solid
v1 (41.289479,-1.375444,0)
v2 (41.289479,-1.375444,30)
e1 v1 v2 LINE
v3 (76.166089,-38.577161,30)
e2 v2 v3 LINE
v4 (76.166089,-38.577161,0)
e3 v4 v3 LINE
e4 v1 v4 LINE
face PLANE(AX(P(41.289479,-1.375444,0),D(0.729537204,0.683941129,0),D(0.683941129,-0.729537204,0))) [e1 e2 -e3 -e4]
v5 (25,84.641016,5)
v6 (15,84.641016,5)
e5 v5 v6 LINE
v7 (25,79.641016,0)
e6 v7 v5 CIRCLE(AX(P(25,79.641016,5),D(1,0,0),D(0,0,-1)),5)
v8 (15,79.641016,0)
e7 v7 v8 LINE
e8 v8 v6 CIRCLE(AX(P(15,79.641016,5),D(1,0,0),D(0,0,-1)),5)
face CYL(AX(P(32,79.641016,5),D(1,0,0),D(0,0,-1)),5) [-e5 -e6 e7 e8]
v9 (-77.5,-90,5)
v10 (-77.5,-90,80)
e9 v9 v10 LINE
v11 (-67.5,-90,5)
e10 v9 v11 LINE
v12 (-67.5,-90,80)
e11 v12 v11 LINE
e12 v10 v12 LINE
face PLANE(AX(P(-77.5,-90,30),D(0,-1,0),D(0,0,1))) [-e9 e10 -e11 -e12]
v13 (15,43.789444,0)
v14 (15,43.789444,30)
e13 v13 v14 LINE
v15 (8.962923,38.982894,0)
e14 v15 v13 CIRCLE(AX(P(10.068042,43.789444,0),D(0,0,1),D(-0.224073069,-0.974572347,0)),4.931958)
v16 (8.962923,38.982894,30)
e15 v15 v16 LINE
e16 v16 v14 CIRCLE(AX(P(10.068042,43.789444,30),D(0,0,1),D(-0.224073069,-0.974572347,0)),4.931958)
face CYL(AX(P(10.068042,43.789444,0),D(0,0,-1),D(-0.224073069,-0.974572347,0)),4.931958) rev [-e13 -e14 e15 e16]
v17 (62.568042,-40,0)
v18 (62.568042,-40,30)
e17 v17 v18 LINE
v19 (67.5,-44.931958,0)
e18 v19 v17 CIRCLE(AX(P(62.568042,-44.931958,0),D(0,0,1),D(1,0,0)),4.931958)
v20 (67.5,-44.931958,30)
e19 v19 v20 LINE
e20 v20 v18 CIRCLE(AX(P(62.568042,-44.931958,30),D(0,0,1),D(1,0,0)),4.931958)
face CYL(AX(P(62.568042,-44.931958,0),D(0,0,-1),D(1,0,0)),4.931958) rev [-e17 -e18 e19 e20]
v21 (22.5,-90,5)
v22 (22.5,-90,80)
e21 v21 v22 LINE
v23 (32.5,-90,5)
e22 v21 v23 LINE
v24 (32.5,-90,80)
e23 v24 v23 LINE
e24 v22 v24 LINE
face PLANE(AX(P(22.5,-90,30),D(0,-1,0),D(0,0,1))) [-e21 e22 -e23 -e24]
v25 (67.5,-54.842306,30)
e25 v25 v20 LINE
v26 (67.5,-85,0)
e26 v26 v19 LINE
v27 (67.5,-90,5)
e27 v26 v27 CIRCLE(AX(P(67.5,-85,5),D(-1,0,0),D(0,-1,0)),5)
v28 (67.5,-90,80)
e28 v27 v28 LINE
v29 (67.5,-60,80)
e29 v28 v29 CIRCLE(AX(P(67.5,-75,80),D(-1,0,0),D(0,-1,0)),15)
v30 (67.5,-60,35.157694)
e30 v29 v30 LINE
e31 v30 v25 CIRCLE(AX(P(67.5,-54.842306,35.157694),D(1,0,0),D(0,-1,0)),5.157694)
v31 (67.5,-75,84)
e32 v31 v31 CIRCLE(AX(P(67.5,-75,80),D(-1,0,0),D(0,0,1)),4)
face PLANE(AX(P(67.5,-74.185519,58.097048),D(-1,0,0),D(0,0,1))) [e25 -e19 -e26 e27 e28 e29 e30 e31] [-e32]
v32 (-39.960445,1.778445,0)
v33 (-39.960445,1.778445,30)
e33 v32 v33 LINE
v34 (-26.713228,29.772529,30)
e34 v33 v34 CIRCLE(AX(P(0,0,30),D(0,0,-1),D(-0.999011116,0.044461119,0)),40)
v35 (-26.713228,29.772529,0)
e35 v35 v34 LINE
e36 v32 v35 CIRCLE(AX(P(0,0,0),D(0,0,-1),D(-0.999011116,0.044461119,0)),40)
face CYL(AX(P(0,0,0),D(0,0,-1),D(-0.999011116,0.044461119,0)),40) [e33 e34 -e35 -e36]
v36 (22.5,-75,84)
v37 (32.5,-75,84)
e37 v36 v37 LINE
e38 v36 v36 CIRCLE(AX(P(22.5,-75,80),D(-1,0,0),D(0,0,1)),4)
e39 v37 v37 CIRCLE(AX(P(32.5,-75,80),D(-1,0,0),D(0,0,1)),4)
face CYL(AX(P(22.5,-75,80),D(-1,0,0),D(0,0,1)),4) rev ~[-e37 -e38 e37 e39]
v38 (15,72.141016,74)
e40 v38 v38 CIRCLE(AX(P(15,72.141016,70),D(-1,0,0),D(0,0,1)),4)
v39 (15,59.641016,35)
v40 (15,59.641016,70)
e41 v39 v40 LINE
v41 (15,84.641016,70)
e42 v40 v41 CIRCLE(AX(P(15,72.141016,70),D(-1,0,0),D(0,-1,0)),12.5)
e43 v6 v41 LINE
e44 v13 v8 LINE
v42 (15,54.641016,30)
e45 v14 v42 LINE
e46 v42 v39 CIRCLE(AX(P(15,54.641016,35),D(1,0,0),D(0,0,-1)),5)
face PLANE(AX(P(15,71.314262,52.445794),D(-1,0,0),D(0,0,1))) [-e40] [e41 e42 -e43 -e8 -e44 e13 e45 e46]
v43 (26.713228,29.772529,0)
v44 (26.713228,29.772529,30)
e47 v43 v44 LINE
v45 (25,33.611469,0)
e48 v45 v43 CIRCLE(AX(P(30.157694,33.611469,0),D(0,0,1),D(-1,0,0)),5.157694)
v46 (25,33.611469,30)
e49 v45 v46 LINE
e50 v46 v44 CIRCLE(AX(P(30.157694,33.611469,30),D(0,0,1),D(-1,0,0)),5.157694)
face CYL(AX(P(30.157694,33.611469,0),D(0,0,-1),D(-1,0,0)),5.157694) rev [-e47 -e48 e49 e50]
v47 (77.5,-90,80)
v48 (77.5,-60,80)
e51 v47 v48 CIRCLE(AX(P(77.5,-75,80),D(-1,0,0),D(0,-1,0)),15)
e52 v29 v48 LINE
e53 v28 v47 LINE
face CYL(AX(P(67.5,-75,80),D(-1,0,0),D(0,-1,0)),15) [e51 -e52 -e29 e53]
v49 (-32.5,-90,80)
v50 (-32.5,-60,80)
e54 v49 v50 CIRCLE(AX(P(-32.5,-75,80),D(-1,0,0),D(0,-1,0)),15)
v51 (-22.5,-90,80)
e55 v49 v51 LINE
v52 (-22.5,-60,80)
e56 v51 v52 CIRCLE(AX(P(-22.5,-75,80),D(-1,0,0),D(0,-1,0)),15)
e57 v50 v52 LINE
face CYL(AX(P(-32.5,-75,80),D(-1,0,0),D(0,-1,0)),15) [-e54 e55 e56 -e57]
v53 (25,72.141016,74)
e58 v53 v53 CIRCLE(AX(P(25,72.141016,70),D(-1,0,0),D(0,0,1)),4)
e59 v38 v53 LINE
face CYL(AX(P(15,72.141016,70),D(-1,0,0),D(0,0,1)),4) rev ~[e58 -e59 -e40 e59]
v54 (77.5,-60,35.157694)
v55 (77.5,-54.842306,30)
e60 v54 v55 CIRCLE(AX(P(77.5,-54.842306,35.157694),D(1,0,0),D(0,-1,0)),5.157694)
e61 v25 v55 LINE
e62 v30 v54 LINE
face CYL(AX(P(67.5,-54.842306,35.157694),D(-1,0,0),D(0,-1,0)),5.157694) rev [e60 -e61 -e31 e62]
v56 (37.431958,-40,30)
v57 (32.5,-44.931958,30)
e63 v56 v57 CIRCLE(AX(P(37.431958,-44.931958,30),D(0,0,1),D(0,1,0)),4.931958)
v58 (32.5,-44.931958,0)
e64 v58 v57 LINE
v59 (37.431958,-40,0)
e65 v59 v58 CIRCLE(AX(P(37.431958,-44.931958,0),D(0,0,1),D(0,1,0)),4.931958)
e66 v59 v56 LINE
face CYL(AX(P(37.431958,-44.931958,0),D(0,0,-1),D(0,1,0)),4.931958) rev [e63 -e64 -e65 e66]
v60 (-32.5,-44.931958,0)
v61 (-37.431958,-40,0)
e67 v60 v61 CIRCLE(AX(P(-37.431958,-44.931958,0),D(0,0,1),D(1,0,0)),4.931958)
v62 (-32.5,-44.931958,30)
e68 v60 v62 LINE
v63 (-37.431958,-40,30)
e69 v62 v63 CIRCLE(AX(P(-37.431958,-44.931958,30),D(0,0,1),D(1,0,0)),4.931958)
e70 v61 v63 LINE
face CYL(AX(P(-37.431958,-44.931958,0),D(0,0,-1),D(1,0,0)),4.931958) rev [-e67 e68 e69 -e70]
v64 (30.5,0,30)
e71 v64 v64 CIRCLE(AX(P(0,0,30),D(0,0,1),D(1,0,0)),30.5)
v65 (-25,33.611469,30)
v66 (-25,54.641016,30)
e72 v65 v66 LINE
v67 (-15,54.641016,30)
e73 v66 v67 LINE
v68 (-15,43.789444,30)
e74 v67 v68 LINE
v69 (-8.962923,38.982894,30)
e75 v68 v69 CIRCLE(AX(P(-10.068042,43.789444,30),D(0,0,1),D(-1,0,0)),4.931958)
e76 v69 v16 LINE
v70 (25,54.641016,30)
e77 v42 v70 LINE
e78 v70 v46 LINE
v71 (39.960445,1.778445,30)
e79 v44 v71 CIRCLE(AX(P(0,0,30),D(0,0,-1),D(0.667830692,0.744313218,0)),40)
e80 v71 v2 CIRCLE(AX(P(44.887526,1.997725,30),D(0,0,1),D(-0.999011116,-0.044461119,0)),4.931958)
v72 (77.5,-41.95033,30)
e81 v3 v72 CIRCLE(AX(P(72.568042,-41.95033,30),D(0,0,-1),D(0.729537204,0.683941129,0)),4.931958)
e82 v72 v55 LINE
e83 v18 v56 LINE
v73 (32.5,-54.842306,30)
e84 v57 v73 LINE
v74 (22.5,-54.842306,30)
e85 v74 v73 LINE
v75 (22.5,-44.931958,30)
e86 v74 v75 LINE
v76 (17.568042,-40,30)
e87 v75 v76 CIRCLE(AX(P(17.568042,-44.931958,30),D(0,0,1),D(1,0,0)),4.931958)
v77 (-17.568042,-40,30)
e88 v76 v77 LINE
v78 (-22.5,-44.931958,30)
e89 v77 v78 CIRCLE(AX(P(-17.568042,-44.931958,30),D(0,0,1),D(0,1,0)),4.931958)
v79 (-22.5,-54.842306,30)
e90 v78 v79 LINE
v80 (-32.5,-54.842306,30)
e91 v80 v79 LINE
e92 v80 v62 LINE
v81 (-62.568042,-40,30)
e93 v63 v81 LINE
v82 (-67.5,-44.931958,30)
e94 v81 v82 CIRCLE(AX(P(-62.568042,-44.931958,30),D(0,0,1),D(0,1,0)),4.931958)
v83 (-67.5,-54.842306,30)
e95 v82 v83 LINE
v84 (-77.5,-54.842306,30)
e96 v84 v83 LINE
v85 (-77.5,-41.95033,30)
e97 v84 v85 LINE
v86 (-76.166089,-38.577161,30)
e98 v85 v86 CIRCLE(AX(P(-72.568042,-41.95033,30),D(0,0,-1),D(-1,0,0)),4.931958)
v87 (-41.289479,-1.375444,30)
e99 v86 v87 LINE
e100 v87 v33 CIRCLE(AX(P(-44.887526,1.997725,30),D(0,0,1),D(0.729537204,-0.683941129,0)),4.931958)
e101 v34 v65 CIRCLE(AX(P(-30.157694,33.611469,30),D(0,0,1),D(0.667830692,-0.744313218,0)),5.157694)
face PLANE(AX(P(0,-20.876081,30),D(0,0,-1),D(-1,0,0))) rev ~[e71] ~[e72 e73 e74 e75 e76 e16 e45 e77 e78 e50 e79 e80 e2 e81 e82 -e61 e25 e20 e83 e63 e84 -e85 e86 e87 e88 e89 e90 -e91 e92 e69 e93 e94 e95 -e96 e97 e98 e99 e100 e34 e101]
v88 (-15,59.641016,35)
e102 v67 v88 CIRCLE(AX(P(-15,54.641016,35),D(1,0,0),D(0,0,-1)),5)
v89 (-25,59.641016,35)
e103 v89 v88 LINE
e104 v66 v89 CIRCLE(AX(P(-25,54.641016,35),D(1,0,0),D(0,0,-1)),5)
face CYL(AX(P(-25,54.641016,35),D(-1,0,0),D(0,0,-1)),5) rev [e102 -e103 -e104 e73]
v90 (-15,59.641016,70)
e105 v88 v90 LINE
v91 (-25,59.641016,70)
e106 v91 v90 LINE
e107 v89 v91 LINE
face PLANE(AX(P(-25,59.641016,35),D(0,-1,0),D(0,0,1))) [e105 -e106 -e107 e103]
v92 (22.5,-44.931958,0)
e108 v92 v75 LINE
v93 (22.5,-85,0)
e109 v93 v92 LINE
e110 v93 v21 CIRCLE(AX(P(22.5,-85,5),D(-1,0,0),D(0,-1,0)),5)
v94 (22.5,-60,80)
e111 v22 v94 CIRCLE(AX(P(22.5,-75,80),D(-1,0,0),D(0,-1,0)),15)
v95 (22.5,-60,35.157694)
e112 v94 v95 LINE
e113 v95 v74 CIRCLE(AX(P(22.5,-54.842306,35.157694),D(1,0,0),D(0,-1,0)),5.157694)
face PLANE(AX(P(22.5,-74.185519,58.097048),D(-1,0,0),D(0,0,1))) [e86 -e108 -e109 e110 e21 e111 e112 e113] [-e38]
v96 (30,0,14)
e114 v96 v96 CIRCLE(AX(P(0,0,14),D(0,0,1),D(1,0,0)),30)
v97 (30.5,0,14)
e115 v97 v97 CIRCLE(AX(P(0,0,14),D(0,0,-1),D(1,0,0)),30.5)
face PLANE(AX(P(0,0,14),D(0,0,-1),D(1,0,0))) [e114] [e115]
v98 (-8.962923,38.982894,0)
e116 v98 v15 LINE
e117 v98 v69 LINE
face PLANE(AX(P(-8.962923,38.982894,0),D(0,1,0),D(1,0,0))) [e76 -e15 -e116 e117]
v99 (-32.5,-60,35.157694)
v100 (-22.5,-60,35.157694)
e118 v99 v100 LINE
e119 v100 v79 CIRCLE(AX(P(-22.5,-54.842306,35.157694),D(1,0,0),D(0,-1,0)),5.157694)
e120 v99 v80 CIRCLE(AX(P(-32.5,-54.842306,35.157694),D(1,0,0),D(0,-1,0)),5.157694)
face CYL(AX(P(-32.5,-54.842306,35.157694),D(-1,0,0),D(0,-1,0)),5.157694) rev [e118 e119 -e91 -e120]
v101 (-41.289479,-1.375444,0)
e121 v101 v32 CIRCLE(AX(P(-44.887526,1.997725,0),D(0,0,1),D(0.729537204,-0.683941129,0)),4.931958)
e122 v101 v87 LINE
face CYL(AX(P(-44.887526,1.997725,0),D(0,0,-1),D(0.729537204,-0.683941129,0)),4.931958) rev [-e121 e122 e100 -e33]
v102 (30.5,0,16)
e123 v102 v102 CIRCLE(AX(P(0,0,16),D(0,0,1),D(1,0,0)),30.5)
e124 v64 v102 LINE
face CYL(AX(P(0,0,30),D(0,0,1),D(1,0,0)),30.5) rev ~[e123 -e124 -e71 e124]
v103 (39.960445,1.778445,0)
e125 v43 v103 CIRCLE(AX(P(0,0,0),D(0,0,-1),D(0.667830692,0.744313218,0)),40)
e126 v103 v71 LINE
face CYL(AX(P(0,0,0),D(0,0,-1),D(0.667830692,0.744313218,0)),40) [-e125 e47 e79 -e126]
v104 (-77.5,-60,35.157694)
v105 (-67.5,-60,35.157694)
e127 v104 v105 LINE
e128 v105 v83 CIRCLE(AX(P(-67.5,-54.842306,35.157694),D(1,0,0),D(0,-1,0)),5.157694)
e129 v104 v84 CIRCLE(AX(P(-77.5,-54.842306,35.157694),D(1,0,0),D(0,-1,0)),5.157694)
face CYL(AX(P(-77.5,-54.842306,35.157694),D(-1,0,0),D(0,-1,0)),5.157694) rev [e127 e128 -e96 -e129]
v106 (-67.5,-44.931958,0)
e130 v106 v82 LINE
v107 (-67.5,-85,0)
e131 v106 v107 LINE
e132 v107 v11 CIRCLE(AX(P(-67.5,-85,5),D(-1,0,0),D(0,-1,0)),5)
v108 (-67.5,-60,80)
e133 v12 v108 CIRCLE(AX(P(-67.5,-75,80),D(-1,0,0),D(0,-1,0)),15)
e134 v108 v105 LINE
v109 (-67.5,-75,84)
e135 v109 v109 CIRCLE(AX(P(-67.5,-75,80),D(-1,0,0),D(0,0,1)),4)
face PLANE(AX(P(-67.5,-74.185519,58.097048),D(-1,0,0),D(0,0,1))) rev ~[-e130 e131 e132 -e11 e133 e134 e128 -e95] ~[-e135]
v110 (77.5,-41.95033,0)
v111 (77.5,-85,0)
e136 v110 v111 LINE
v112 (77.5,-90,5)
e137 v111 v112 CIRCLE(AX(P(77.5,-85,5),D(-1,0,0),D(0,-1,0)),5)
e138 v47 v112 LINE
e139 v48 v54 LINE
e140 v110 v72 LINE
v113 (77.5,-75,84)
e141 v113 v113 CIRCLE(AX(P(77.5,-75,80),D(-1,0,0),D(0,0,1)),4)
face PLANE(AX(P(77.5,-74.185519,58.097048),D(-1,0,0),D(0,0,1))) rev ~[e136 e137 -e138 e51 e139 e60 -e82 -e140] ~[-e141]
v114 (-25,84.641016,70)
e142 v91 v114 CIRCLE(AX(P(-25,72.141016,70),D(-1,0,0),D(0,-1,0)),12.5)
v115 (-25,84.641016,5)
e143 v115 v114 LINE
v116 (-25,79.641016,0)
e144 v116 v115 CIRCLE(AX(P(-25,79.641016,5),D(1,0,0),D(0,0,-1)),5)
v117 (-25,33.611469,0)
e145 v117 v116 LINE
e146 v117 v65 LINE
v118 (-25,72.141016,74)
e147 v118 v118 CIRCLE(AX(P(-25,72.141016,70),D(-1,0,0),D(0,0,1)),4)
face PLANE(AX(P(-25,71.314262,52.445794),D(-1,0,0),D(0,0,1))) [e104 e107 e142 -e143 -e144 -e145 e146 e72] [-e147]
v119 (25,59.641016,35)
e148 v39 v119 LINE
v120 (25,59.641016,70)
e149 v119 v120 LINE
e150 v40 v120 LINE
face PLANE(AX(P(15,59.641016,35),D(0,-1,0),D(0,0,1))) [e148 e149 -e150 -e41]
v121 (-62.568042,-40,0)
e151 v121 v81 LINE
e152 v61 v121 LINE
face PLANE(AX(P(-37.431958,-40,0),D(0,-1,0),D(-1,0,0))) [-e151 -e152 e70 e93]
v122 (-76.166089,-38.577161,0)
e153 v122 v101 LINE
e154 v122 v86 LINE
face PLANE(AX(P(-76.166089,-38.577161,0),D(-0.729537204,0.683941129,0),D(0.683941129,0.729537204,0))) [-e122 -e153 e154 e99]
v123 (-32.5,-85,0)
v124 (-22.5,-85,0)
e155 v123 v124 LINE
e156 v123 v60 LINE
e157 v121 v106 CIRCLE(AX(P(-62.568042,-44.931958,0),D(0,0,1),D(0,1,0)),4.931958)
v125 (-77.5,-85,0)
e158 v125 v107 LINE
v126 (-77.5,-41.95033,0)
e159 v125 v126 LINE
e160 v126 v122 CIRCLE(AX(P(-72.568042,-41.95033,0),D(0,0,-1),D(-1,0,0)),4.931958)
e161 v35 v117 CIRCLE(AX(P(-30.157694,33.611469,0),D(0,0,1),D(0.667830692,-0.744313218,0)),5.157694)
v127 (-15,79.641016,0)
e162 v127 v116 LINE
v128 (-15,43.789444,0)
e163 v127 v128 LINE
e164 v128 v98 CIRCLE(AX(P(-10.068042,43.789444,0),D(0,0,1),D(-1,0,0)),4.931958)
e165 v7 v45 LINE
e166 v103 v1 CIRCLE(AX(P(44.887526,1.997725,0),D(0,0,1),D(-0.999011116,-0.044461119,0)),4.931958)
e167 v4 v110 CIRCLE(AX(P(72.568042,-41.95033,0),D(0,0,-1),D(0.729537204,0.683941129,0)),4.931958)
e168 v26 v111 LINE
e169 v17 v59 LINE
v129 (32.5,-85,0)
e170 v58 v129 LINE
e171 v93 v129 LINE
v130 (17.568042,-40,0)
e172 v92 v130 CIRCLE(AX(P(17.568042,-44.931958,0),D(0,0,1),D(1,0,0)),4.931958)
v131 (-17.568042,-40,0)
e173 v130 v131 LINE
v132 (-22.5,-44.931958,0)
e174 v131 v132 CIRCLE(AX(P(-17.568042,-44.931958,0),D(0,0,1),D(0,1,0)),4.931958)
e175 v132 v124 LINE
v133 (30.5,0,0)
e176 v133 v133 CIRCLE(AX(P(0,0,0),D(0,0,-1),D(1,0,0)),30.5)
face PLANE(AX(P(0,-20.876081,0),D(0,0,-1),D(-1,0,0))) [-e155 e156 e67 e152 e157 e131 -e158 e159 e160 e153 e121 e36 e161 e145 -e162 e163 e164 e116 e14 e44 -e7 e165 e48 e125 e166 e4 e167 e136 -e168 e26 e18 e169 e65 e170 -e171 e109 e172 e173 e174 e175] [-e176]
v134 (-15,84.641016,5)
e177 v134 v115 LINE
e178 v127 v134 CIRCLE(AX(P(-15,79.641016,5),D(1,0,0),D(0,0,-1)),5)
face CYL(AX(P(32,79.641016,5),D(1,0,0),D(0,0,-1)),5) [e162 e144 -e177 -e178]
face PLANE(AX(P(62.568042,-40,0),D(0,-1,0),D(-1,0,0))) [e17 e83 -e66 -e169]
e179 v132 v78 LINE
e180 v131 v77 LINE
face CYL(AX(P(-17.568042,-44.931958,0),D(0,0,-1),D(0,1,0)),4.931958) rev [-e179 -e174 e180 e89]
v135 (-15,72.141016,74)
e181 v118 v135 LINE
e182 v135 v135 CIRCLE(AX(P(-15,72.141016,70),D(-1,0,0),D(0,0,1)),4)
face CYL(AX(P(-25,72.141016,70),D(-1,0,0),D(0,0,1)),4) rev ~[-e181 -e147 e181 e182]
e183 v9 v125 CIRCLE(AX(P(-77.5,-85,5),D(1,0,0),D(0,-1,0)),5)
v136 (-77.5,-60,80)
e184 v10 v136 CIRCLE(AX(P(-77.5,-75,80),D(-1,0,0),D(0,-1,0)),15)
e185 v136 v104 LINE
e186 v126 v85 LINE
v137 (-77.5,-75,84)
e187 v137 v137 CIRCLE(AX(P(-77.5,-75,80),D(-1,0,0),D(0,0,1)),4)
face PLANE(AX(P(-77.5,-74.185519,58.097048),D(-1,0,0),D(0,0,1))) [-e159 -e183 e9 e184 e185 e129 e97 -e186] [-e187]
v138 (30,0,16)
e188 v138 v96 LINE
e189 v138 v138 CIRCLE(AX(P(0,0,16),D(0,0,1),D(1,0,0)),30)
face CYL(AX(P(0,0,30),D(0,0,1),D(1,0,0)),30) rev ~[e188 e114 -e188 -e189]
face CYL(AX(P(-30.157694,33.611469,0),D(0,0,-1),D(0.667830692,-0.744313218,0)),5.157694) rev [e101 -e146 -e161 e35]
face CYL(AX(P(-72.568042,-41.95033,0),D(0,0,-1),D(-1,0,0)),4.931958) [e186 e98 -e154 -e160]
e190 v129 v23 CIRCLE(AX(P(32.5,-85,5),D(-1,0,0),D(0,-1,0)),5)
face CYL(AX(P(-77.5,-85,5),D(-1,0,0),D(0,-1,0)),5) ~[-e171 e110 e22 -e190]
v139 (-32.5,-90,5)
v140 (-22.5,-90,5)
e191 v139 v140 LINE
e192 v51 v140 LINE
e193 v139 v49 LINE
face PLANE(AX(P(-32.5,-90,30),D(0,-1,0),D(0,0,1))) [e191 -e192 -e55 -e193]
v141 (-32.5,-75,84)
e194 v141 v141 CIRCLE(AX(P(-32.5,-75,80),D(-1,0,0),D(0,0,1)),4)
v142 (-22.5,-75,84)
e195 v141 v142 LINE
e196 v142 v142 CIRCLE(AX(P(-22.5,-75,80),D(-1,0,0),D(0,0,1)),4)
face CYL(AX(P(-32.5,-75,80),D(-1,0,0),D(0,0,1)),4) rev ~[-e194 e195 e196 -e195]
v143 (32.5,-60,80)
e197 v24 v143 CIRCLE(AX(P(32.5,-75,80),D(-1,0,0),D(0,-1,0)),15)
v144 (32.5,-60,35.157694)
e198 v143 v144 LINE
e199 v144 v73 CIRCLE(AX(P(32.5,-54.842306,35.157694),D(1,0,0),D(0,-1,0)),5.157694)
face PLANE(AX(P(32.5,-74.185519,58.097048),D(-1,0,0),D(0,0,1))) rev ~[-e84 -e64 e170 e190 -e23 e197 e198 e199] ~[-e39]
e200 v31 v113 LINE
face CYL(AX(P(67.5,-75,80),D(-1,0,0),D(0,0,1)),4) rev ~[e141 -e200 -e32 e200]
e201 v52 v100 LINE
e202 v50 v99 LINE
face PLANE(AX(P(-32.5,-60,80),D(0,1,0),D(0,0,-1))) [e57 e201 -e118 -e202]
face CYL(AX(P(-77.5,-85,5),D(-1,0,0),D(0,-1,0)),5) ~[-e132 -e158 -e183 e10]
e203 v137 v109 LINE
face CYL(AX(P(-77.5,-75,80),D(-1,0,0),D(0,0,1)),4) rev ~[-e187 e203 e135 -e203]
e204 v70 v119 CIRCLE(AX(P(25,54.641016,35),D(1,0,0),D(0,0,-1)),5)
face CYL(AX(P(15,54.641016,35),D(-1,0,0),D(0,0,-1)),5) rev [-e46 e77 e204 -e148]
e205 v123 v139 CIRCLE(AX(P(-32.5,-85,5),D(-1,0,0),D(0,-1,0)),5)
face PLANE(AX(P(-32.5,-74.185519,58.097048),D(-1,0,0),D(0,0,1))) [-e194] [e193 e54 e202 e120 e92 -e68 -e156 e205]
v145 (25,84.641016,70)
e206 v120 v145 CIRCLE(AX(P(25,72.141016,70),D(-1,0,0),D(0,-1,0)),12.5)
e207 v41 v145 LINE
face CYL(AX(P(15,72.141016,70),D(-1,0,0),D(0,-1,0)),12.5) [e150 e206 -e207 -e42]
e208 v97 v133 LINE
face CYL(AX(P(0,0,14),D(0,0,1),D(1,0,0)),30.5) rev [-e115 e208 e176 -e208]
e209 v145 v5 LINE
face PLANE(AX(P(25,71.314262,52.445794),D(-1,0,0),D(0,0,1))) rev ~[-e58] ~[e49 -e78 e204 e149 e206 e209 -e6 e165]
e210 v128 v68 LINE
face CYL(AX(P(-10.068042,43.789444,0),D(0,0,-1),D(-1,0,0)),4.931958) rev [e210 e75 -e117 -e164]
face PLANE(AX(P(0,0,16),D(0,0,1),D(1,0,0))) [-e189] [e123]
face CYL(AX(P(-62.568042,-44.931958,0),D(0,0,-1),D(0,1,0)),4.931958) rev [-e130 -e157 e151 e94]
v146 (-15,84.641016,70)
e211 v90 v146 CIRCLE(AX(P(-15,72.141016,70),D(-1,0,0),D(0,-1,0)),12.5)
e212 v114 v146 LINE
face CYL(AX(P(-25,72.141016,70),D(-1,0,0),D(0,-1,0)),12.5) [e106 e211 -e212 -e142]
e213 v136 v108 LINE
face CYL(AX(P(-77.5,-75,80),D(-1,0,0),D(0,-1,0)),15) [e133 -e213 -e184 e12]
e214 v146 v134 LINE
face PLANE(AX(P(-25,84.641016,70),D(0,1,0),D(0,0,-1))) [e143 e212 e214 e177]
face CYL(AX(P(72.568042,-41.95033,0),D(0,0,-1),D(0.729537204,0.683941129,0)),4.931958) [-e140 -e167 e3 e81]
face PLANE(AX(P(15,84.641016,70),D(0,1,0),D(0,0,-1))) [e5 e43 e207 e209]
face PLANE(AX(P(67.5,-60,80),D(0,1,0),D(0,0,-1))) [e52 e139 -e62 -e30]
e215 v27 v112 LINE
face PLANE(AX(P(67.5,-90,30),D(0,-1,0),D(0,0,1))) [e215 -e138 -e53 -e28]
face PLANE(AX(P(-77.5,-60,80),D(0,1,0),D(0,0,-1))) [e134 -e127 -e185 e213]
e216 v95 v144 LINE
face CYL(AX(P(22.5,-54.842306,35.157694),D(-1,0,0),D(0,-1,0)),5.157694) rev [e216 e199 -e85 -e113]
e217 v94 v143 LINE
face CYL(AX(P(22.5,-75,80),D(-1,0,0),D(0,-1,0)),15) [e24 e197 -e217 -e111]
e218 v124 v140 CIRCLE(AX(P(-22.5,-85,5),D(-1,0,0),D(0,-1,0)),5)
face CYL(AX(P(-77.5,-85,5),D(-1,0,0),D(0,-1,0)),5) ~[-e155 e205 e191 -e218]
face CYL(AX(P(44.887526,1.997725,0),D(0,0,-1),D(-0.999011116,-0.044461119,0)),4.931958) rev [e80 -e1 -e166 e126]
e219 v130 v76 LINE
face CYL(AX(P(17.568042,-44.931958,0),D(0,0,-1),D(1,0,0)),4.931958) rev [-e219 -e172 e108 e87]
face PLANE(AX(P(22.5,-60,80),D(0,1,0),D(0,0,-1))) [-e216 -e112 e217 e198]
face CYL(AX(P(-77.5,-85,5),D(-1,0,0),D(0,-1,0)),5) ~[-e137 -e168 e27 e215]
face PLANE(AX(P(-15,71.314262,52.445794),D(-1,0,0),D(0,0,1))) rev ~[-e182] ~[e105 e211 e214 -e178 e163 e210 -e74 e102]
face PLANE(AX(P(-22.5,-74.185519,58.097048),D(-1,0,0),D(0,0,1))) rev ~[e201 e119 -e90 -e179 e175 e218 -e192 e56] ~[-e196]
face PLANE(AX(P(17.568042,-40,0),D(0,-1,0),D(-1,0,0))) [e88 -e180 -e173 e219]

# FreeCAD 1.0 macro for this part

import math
import FreeCAD as App
import Part
import Sketcher

doc = App.newDocument("Part")
body = doc.addObject("PartDesign::Body", "Body")

sketch1 = body.newObject("Sketcher::SketchObject", "Sketch")
sketch1.AttachmentSupport = (doc.getObject("XY_Plane"), [""])
sketch1.MapMode = "FlatFace"
sketch1.addGeometry([
    Part.LineSegment(App.Vector(-15, 43.8, 0), App.Vector(-15, 84.6, 0)),
    Part.LineSegment(App.Vector(-15, 84.6, 0), App.Vector(-25, 84.6, 0)),
    Part.LineSegment(App.Vector(-25, 84.6, 0), App.Vector(-25, 33.6, 0)),
    Part.ArcOfCircle(Part.Circle(App.Vector(-30.2, 33.6, 0), App.Vector(0, 0, 1), 5.2), math.radians(-48), math.radians(0)),
    Part.ArcOfCircle(Part.Circle(App.Vector(0, 0, 0), App.Vector(0, 0, 1), 40), math.radians(132), math.radians(177)),
    Part.ArcOfCircle(Part.Circle(App.Vector(-44.9, 2, 0), App.Vector(0, 0, 1), 4.9), math.radians(-43), math.radians(-3)),
    Part.LineSegment(App.Vector(-41.3, -1.4, 0), App.Vector(-76.2, -38.6, 0)),
    Part.ArcOfCircle(Part.Circle(App.Vector(-72.6, -42, 0), App.Vector(0, 0, 1), 4.9), math.radians(137), math.radians(180)),
    Part.LineSegment(App.Vector(-77.5, -42, 0), App.Vector(-77.5, -90, 0)),
    Part.LineSegment(App.Vector(-77.5, -90, 0), App.Vector(-67.5, -90, 0)),
    Part.LineSegment(App.Vector(-67.5, -90, 0), App.Vector(-67.5, -44.9, 0)),
    Part.ArcOfCircle(Part.Circle(App.Vector(-62.6, -44.9, 0), App.Vector(0, 0, 1), 4.9), math.radians(90), math.radians(180)),
    Part.LineSegment(App.Vector(-62.6, -40, 0), App.Vector(-37.4, -40, 0)),
    Part.ArcOfCircle(Part.Circle(App.Vector(-37.4, -44.9, 0), App.Vector(0, 0, 1), 4.9), math.radians(0), math.radians(90)),
    Part.LineSegment(App.Vector(-32.5, -44.9, 0), App.Vector(-32.5, -90, 0)),
    Part.LineSegment(App.Vector(-32.5, -90, 0), App.Vector(-22.5, -90, 0)),
    Part.LineSegment(App.Vector(-22.5, -90, 0), App.Vector(-22.5, -44.9, 0)),
    Part.ArcOfCircle(Part.Circle(App.Vector(-17.6, -44.9, 0), App.Vector(0, 0, 1), 4.9), math.radians(90), math.radians(180)),
    Part.LineSegment(App.Vector(-17.6, -40, 0), App.Vector(17.6, -40, 0)),
    Part.ArcOfCircle(Part.Circle(App.Vector(17.6, -44.9, 0), App.Vector(0, 0, 1), 4.9), math.radians(0), math.radians(90)),
    Part.LineSegment(App.Vector(22.5, -44.9, 0), App.Vector(22.5, -90, 0)),
    Part.LineSegment(App.Vector(22.5, -90, 0), App.Vector(32.5, -90, 0)),
    Part.LineSegment(App.Vector(32.5, -90, 0), App.Vector(32.5, -44.9, 0)),
    Part.ArcOfCircle(Part.Circle(App.Vector(37.4, -44.9, 0), App.Vector(0, 0, 1), 4.9), math.radians(90), math.radians(180)),
    Part.LineSegment(App.Vector(37.4, -40, 0), App.Vector(62.6, -40, 0)),
    Part.ArcOfCircle(Part.Circle(App.Vector(62.6, -44.9, 0), App.Vector(0, 0, 1), 4.9), math.radians(0), math.radians(90)),
    Part.LineSegment(App.Vector(67.5, -44.9, 0), App.Vector(67.5, -90, 0)),
    Part.LineSegment(App.Vector(67.5, -90, 0), App.Vector(77.5, -90, 0)),
    Part.LineSegment(App.Vector(77.5, -90, 0), App.Vector(77.5, -42, 0)),
    Part.ArcOfCircle(Part.Circle(App.Vector(72.6, -42, 0), App.Vector(0, 0, 1), 4.9), math.radians(0), math.radians(43)),
    Part.LineSegment(App.Vector(76.2, -38.6, 0), App.Vector(41.3, -1.4, 0)),
    Part.ArcOfCircle(Part.Circle(App.Vector(44.9, 2, 0), App.Vector(0, 0, 1), 4.9), math.radians(-177), math.radians(-137)),
    Part.ArcOfCircle(Part.Circle(App.Vector(0, 0, 0), App.Vector(0, 0, 1), 40), math.radians(3), math.radians(48)),
    Part.ArcOfCircle(Part.Circle(App.Vector(30.2, 33.6, 0), App.Vector(0, 0, 1), 5.2), math.radians(180), math.radians(228)),
    Part.LineSegment(App.Vector(25, 33.6, 0), App.Vector(25, 84.6, 0)),
    Part.LineSegment(App.Vector(25, 84.6, 0), App.Vector(15, 84.6, 0)),
    Part.LineSegment(App.Vector(15, 84.6, 0), App.Vector(15, 43.8, 0)),
    Part.ArcOfCircle(Part.Circle(App.Vector(10.1, 43.8, 0), App.Vector(0, 0, 1), 4.9), math.radians(-103), math.radians(0)),
    Part.LineSegment(App.Vector(9, 39, 0), App.Vector(-9, 39, 0)),
    Part.ArcOfCircle(Part.Circle(App.Vector(-10.1, 43.8, 0), App.Vector(0, 0, 1), 4.9), math.radians(180), math.radians(283)),
], False)
sketch1.addConstraint([
    Sketcher.Constraint("Coincident", 0, 2, 1, 1),
    Sketcher.Constraint("Coincident", 1, 2, 2, 1),
    Sketcher.Constraint("Tangent", 2, 2, 3, 2),
    Sketcher.Constraint("Tangent", 3, 1, 4, 1),
    Sketcher.Constraint("Tangent", 4, 2, 5, 2),
    Sketcher.Constraint("Tangent", 5, 1, 6, 1),
    Sketcher.Constraint("Tangent", 6, 2, 7, 1),
    Sketcher.Constraint("Tangent", 7, 2, 8, 1),
    Sketcher.Constraint("Coincident", 8, 2, 9, 1),
    Sketcher.Constraint("Coincident", 9, 2, 10, 1),
    Sketcher.Constraint("Tangent", 10, 2, 11, 2),
    Sketcher.Constraint("Tangent", 11, 1, 12, 1),
    Sketcher.Constraint("Tangent", 12, 2, 13, 2),
    Sketcher.Constraint("Tangent", 13, 1, 14, 1),
    Sketcher.Constraint("Coincident", 14, 2, 15, 1),
    Sketcher.Constraint("Coincident", 15, 2, 16, 1),
    Sketcher.Constraint("Tangent", 16, 2, 17, 2),
    Sketcher.Constraint("Tangent", 17, 1, 18, 1),
    Sketcher.Constraint("Tangent", 18, 2, 19, 2),
    Sketcher.Constraint("Tangent", 19, 1, 20, 1),
    Sketcher.Constraint("Coincident", 20, 2, 21, 1),
    Sketcher.Constraint("Coincident", 21, 2, 22, 1),
    Sketcher.Constraint("Tangent", 22, 2, 23, 2),
    Sketcher.Constraint("Tangent", 23, 1, 24, 1),
    Sketcher.Constraint("Tangent", 24, 2, 25, 2),
    Sketcher.Constraint("Tangent", 25, 1, 26, 1),
    Sketcher.Constraint("Coincident", 26, 2, 27, 1),
    Sketcher.Constraint("Coincident", 27, 2, 28, 1),
    Sketcher.Constraint("Tangent", 28, 2, 29, 1),
    Sketcher.Constraint("Tangent", 29, 2, 30, 1),
    Sketcher.Constraint("Tangent", 30, 2, 31, 2),
    Sketcher.Constraint("Tangent", 31, 1, 32, 1),
    Sketcher.Constraint("Tangent", 32, 2, 33, 2),
    Sketcher.Constraint("Tangent", 33, 1, 34, 1),
    Sketcher.Constraint("Coincident", 34, 2, 35, 1),
    Sketcher.Constraint("Coincident", 35, 2, 36, 1),
    Sketcher.Constraint("Tangent", 36, 2, 37, 2),
    Sketcher.Constraint("Coincident", 37, 1, 38, 1),
    Sketcher.Constraint("Coincident", 38, 2, 39, 2),
    Sketcher.Constraint("Tangent", 39, 1, 0, 1),
    Sketcher.Constraint("Vertical", 0),
    Sketcher.Constraint("Horizontal", 1),
    Sketcher.Constraint("Vertical", 2),
    Sketcher.Constraint("Vertical", 8),
    Sketcher.Constraint("Horizontal", 9),
    Sketcher.Constraint("Vertical", 10),
    Sketcher.Constraint("Horizontal", 12),
    Sketcher.Constraint("Vertical", 14),
    Sketcher.Constraint("Horizontal", 15),
    Sketcher.Constraint("Vertical", 16),
    Sketcher.Constraint("Horizontal", 18),
    Sketcher.Constraint("Vertical", 20),
    Sketcher.Constraint("Horizontal", 21),
    Sketcher.Constraint("Vertical", 22),
    Sketcher.Constraint("Horizontal", 24),
    Sketcher.Constraint("Vertical", 26),
    Sketcher.Constraint("Horizontal", 27),
    Sketcher.Constraint("Vertical", 28),
    Sketcher.Constraint("Vertical", 34),
    Sketcher.Constraint("Horizontal", 35),
    Sketcher.Constraint("Vertical", 36),
    Sketcher.Constraint("Horizontal", 38),
    Sketcher.Constraint("Coincident", 4, 3, -1, 1),
    Sketcher.Constraint("Coincident", 32, 3, -1, 1),
    Sketcher.Constraint("Equal", 5, 7),
    Sketcher.Constraint("Equal", 7, 11),
    Sketcher.Constraint("Equal", 11, 13),
    Sketcher.Constraint("Equal", 13, 17),
    Sketcher.Constraint("Equal", 17, 19),
    Sketcher.Constraint("Equal", 19, 23),
    Sketcher.Constraint("Equal", 23, 25),
    Sketcher.Constraint("Equal", 25, 29),
    Sketcher.Constraint("Equal", 29, 31),
    Sketcher.Constraint("Equal", 4, 32),
    Sketcher.Constraint("Equal", 3, 33),
    Sketcher.Constraint("Equal", 31, 37),
    Sketcher.Constraint("Equal", 37, 39),
    Sketcher.Constraint("Symmetric", 13, 3, 23, 3, -2),
    Sketcher.Constraint("Symmetric", 7, 3, 29, 3, -2),
    Sketcher.Constraint("Symmetric", 37, 3, 39, 3, -2),
    Sketcher.Constraint("Symmetric", 15, 2, 20, 2, -2),
    Sketcher.Constraint("Symmetric", 9, 2, 26, 2, -2),
    Sketcher.Constraint("Symmetric", 1, 2, 34, 2, -2),
    Sketcher.Constraint("Horizontal", 13, 3, 17, 3),
    Sketcher.Constraint("Horizontal", 5, 3, 31, 3),
    Sketcher.Constraint("Horizontal", 9, 2, 14, 2),
    Sketcher.Constraint("Equal", 1, 9),
    Sketcher.Constraint("Equal", 9, 15),
    Sketcher.Constraint("Radius", 4, 40.0),
    Sketcher.Constraint("DistanceX", 1, 2, 1, 1, 10.0),
    Sketcher.Constraint("DistanceX", 0, 2, -1, 1, 15.0),
    Sketcher.Constraint("DistanceY", 8, 2, -1, 1, 90.0),
    Sketcher.Constraint("DistanceY", 11, 1, -1, 1, 40.0),
    Sketcher.Constraint("DistanceX", 11, 3, 17, 3, 45.0),
    Sketcher.Constraint("DistanceX", 13, 3, 19, 3, 55.0),
    Sketcher.Constraint("Radius", 5, 4.931958),
    Sketcher.Constraint("Radius", 3, 5.157694),
    Sketcher.Constraint("DistanceY", 8, 2, 8, 1, 48.04967),
    Sketcher.Constraint("DistanceX", 5, 3, 3, 1, 18.174298),
    Sketcher.Constraint("DistanceX", 38, 2, 38, 1, 17.925846),
    Sketcher.Constraint("DistanceY", 0, 1, 0, 2, 40.851572),
    Sketcher.Constraint("DistanceY", 2, 2, 2, 1, 51.029548),
])
pad1 = body.newObject("PartDesign::Pad", "Pad")
pad1.Profile = sketch1
pad1.Length = 30

sketch2 = body.newObject("Sketcher::SketchObject", "Sketch001")
sketch2.AttachmentSupport = (doc.getObject("YZ_Plane"), [""])
sketch2.MapMode = "FlatFace"
sketch2.AttachmentOffset = App.Placement(App.Vector(0, 0, -77.5), App.Rotation())
sketch2.addGeometry([
    Part.LineSegment(App.Vector(-54.8, 30, 0), App.Vector(-90, 30, 0)),
    Part.LineSegment(App.Vector(-90, 30, 0), App.Vector(-90, 80, 0)),
    Part.ArcOfCircle(Part.Circle(App.Vector(-75, 80, 0), App.Vector(0, 0, 1), 15), math.radians(0), math.radians(180)),
    Part.LineSegment(App.Vector(-60, 80, 0), App.Vector(-60, 35.2, 0)),
    Part.ArcOfCircle(Part.Circle(App.Vector(-54.8, 35.2, 0), App.Vector(0, 0, 1), 5.2), math.radians(180), math.radians(270)),
    Part.Circle(App.Vector(-75, 80, 0), App.Vector(0, 0, 1), 4),
], False)
sketch2.addConstraint([
    Sketcher.Constraint("Coincident", 0, 2, 1, 1),
    Sketcher.Constraint("Tangent", 1, 2, 2, 2),
    Sketcher.Constraint("Tangent", 2, 1, 3, 1),
    Sketcher.Constraint("Tangent", 3, 2, 4, 1),
    Sketcher.Constraint("Tangent", 4, 2, 0, 1),
    Sketcher.Constraint("Horizontal", 0),
    Sketcher.Constraint("Vertical", 1),
    Sketcher.Constraint("Vertical", 3),
    Sketcher.Constraint("Coincident", 5, 3, 2, 3),
    Sketcher.Constraint("Diameter", 5, 8.0),
    Sketcher.Constraint("Radius", 2, 15.0),
    Sketcher.Constraint("DistanceY", 1, 1, 1, 2, 50.0),
    Sketcher.Constraint("DistanceX", 2, 3, -1, 1, 75.0),
    Sketcher.Constraint("DistanceY", -1, 1, 2, 3, 80.0),
    Sketcher.Constraint("Radius", 4, 5.157694),
])
pad2 = body.newObject("PartDesign::Pad", "Pad001")
pad2.Profile = sketch2
pad2.Length = 10

sketch3 = body.newObject("Sketcher::SketchObject", "Sketch002")
sketch3.AttachmentSupport = (doc.getObject("YZ_Plane"), [""])
sketch3.MapMode = "FlatFace"
sketch3.AttachmentOffset = App.Placement(App.Vector(0, 0, -77.5), App.Rotation())
sketch3.addGeometry([
    Part.ArcOfCircle(Part.Circle(App.Vector(-85, 5, 0), App.Vector(0, 0, 1), 5), math.radians(180), math.radians(270)),
    Part.LineSegment(App.Vector(-85, 0, 0), App.Vector(-90, 0, 0)),
    Part.LineSegment(App.Vector(-90, 0, 0), App.Vector(-90, 5, 0)),
], False)
sketch3.addConstraint([
    Sketcher.Constraint("Tangent", 0, 2, 1, 1),
    Sketcher.Constraint("Coincident", 1, 2, 2, 1),
    Sketcher.Constraint("Tangent", 2, 2, 0, 1),
    Sketcher.Constraint("Horizontal", 1),
    Sketcher.Constraint("Vertical", 2),
    Sketcher.Constraint("PointOnObject", 0, 2, -1),
    Sketcher.Constraint("Radius", 0, 5.0),
    Sketcher.Constraint("DistanceX", 0, 3, -1, 1, 85.0),
])
pocket1 = body.newObject("PartDesign::Pocket", "Pocket")
pocket1.Profile = sketch3
pocket1.Length = 162
pocket1.Reversed = True

sketch4 = body.newObject("Sketcher::SketchObject", "Sketch003")
sketch4.AttachmentSupport = (doc.getObject("YZ_Plane"), [""])
sketch4.MapMode = "FlatFace"
sketch4.AttachmentOffset = App.Placement(App.Vector(0, 0, -32.5), App.Rotation())
sketch4.addGeometry([
    Part.LineSegment(App.Vector(-54.8, 30, 0), App.Vector(-90, 30, 0)),
    Part.LineSegment(App.Vector(-90, 30, 0), App.Vector(-90, 80, 0)),
    Part.ArcOfCircle(Part.Circle(App.Vector(-75, 80, 0), App.Vector(0, 0, 1), 15), math.radians(0), math.radians(180)),
    Part.LineSegment(App.Vector(-60, 80, 0), App.Vector(-60, 35.2, 0)),
    Part.ArcOfCircle(Part.Circle(App.Vector(-54.8, 35.2, 0), App.Vector(0, 0, 1), 5.2), math.radians(180), math.radians(270)),
    Part.Circle(App.Vector(-75, 80, 0), App.Vector(0, 0, 1), 4),
], False)
sketch4.addConstraint([
    Sketcher.Constraint("Coincident", 0, 2, 1, 1),
    Sketcher.Constraint("Tangent", 1, 2, 2, 2),
    Sketcher.Constraint("Tangent", 2, 1, 3, 1),
    Sketcher.Constraint("Tangent", 3, 2, 4, 1),
    Sketcher.Constraint("Tangent", 4, 2, 0, 1),
    Sketcher.Constraint("Horizontal", 0),
    Sketcher.Constraint("Vertical", 1),
    Sketcher.Constraint("Vertical", 3),
    Sketcher.Constraint("Coincident", 5, 3, 2, 3),
    Sketcher.Constraint("Diameter", 5, 8.0),
    Sketcher.Constraint("Radius", 2, 15.0),
    Sketcher.Constraint("DistanceY", 1, 1, 1, 2, 50.0),
    Sketcher.Constraint("DistanceX", 2, 3, -1, 1, 75.0),
    Sketcher.Constraint("DistanceY", -1, 1, 2, 3, 80.0),
    Sketcher.Constraint("Radius", 4, 5.157694),
])
pad3 = body.newObject("PartDesign::Pad", "Pad002")
pad3.Profile = sketch4
pad3.Length = 10

sketch5 = body.newObject("Sketcher::SketchObject", "Sketch004")
sketch5.AttachmentSupport = (doc.getObject("YZ_Plane"), [""])
sketch5.MapMode = "FlatFace"
sketch5.AttachmentOffset = App.Placement(App.Vector(0, 0, 22.5), App.Rotation())
sketch5.addGeometry([
    Part.LineSegment(App.Vector(-54.8, 30, 0), App.Vector(-90, 30, 0)),
    Part.LineSegment(App.Vector(-90, 30, 0), App.Vector(-90, 80, 0)),
    Part.ArcOfCircle(Part.Circle(App.Vector(-75, 80, 0), App.Vector(0, 0, 1), 15), math.radians(0), math.radians(180)),
    Part.LineSegment(App.Vector(-60, 80, 0), App.Vector(-60, 35.2, 0)),
    Part.ArcOfCircle(Part.Circle(App.Vector(-54.8, 35.2, 0), App.Vector(0, 0, 1), 5.2), math.radians(180), math.radians(270)),
    Part.Circle(App.Vector(-75, 80, 0), App.Vector(0, 0, 1), 4),
], False)
sketch5.addConstraint([
    Sketcher.Constraint("Coincident", 0, 2, 1, 1),
    Sketcher.Constraint("Tangent", 1, 2, 2, 2),
    Sketcher.Constraint("Tangent", 2, 1, 3, 1),
    Sketcher.Constraint("Tangent", 3, 2, 4, 1),
    Sketcher.Constraint("Tangent", 4, 2, 0, 1),
    Sketcher.Constraint("Horizontal", 0),
    Sketcher.Constraint("Vertical", 1),
    Sketcher.Constraint("Vertical", 3),
    Sketcher.Constraint("Coincident", 5, 3, 2, 3),
    Sketcher.Constraint("Diameter", 5, 8.0),
    Sketcher.Constraint("Radius", 2, 15.0),
    Sketcher.Constraint("DistanceY", 1, 1, 1, 2, 50.0),
    Sketcher.Constraint("DistanceX", 2, 3, -1, 1, 75.0),
    Sketcher.Constraint("DistanceY", -1, 1, 2, 3, 80.0),
    Sketcher.Constraint("Radius", 4, 5.157694),
])
pad4 = body.newObject("PartDesign::Pad", "Pad003")
pad4.Profile = sketch5
pad4.Length = 10

sketch6 = body.newObject("Sketcher::SketchObject", "Sketch005")
sketch6.AttachmentSupport = (doc.getObject("YZ_Plane"), [""])
sketch6.MapMode = "FlatFace"
sketch6.AttachmentOffset = App.Placement(App.Vector(0, 0, 67.5), App.Rotation())
sketch6.addGeometry([
    Part.LineSegment(App.Vector(-54.8, 30, 0), App.Vector(-90, 30, 0)),
    Part.LineSegment(App.Vector(-90, 30, 0), App.Vector(-90, 80, 0)),
    Part.ArcOfCircle(Part.Circle(App.Vector(-75, 80, 0), App.Vector(0, 0, 1), 15), math.radians(0), math.radians(180)),
    Part.LineSegment(App.Vector(-60, 80, 0), App.Vector(-60, 35.2, 0)),
    Part.ArcOfCircle(Part.Circle(App.Vector(-54.8, 35.2, 0), App.Vector(0, 0, 1), 5.2), math.radians(180), math.radians(270)),
    Part.Circle(App.Vector(-75, 80, 0), App.Vector(0, 0, 1), 4),
], False)
sketch6.addConstraint([
    Sketcher.Constraint("Coincident", 0, 2, 1, 1),
    Sketcher.Constraint("Tangent", 1, 2, 2, 2),
    Sketcher.Constraint("Tangent", 2, 1, 3, 1),
    Sketcher.Constraint("Tangent", 3, 2, 4, 1),
    Sketcher.Constraint("Tangent", 4, 2, 0, 1),
    Sketcher.Constraint("Horizontal", 0),
    Sketcher.Constraint("Vertical", 1),
    Sketcher.Constraint("Vertical", 3),
    Sketcher.Constraint("Coincident", 5, 3, 2, 3),
    Sketcher.Constraint("Diameter", 5, 8.0),
    Sketcher.Constraint("Radius", 2, 15.0),
    Sketcher.Constraint("DistanceY", 1, 1, 1, 2, 50.0),
    Sketcher.Constraint("DistanceX", 2, 3, -1, 1, 75.0),
    Sketcher.Constraint("DistanceY", -1, 1, 2, 3, 80.0),
    Sketcher.Constraint("Radius", 4, 5.157694),
])
pad5 = body.newObject("PartDesign::Pad", "Pad004")
pad5.Profile = sketch6
pad5.Length = 10

sketch7 = body.newObject("Sketcher::SketchObject", "Sketch006")
sketch7.AttachmentSupport = (doc.getObject("YZ_Plane"), [""])
sketch7.MapMode = "FlatFace"
sketch7.AttachmentOffset = App.Placement(App.Vector(0, 0, -25), App.Rotation())
sketch7.addGeometry([
    Part.LineSegment(App.Vector(84.6, 70, 0), App.Vector(84.6, 30, 0)),
    Part.LineSegment(App.Vector(84.6, 30, 0), App.Vector(54.6, 30, 0)),
    Part.ArcOfCircle(Part.Circle(App.Vector(54.6, 35, 0), App.Vector(0, 0, 1), 5), math.radians(-90), math.radians(0)),
    Part.LineSegment(App.Vector(59.6, 35, 0), App.Vector(59.6, 70, 0)),
    Part.ArcOfCircle(Part.Circle(App.Vector(72.1, 70, 0), App.Vector(0, 0, 1), 12.5), math.radians(0), math.radians(180)),
    Part.Circle(App.Vector(72.1, 70, 0), App.Vector(0, 0, 1), 4),
], False)
sketch7.addConstraint([
    Sketcher.Constraint("Coincident", 0, 2, 1, 1),
    Sketcher.Constraint("Tangent", 1, 2, 2, 1),
    Sketcher.Constraint("Tangent", 2, 2, 3, 1),
    Sketcher.Constraint("Tangent", 3, 2, 4, 2),
    Sketcher.Constraint("Tangent", 4, 1, 0, 1),
    Sketcher.Constraint("Vertical", 0),
    Sketcher.Constraint("Horizontal", 1),
    Sketcher.Constraint("Vertical", 3),
    Sketcher.Constraint("Coincident", 5, 3, 4, 3),
    Sketcher.Constraint("Diameter", 5, 8.0),
    Sketcher.Constraint("Radius", 2, 5.0),
    Sketcher.Constraint("Radius", 4, 12.5),
    Sketcher.Constraint("DistanceY", 0, 2, 0, 1, 40.0),
    Sketcher.Constraint("DistanceY", -1, 1, 2, 3, 35.0),
    Sketcher.Constraint("DistanceX", -1, 1, 2, 3, 54.641016),
])
pad6 = body.newObject("PartDesign::Pad", "Pad005")
pad6.Profile = sketch7
pad6.Length = 10

sketch8 = body.newObject("Sketcher::SketchObject", "Sketch007")
sketch8.AttachmentSupport = (doc.getObject("YZ_Plane"), [""])
sketch8.MapMode = "FlatFace"
sketch8.AttachmentOffset = App.Placement(App.Vector(0, 0, -25), App.Rotation())
sketch8.addGeometry([
    Part.LineSegment(App.Vector(85, 0, 0), App.Vector(80, 0, 0)),
    Part.ArcOfCircle(Part.Circle(App.Vector(80, 5, 0), App.Vector(0, 0, 1), 5), math.radians(-90), math.radians(0)),
    Part.LineSegment(App.Vector(85, 5, 0), App.Vector(85, 0, 0)),
], False)
sketch8.addConstraint([
    Sketcher.Constraint("Tangent", 0, 2, 1, 1),
    Sketcher.Constraint("Tangent", 1, 2, 2, 1),
    Sketcher.Constraint("Coincident", 2, 2, 0, 1),
    Sketcher.Constraint("Horizontal", 0),
    Sketcher.Constraint("Vertical", 2),
    Sketcher.Constraint("PointOnObject", 0, 2, -1),
    Sketcher.Constraint("Radius", 1, 5.0),
    Sketcher.Constraint("DistanceX", -1, 1, 1, 3, 79.641016),
])
pocket2 = body.newObject("PartDesign::Pocket", "Pocket001")
pocket2.Profile = sketch8
pocket2.Type = "ThroughAll"
pocket2.Midplane = True

sketch9 = body.newObject("Sketcher::SketchObject", "Sketch008")
sketch9.AttachmentSupport = (doc.getObject("YZ_Plane"), [""])
sketch9.MapMode = "FlatFace"
sketch9.AttachmentOffset = App.Placement(App.Vector(0, 0, 15), App.Rotation())
sketch9.addGeometry([
    Part.LineSegment(App.Vector(84.6, 70, 0), App.Vector(84.6, 30, 0)),
    Part.LineSegment(App.Vector(84.6, 30, 0), App.Vector(54.6, 30, 0)),
    Part.ArcOfCircle(Part.Circle(App.Vector(54.6, 35, 0), App.Vector(0, 0, 1), 5), math.radians(-90), math.radians(0)),
    Part.LineSegment(App.Vector(59.6, 35, 0), App.Vector(59.6, 70, 0)),
    Part.ArcOfCircle(Part.Circle(App.Vector(72.1, 70, 0), App.Vector(0, 0, 1), 12.5), math.radians(0), math.radians(180)),
    Part.Circle(App.Vector(72.1, 70, 0), App.Vector(0, 0, 1), 4),
], False)
sketch9.addConstraint([
    Sketcher.Constraint("Coincident", 0, 2, 1, 1),
    Sketcher.Constraint("Tangent", 1, 2, 2, 1),
    Sketcher.Constraint("Tangent", 2, 2, 3, 1),
    Sketcher.Constraint("Tangent", 3, 2, 4, 2),
    Sketcher.Constraint("Tangent", 4, 1, 0, 1),
    Sketcher.Constraint("Vertical", 0),
    Sketcher.Constraint("Horizontal", 1),
    Sketcher.Constraint("Vertical", 3),
    Sketcher.Constraint("Coincident", 5, 3, 4, 3),
    Sketcher.Constraint("Diameter", 5, 8.0),
    Sketcher.Constraint("Radius", 2, 5.0),
    Sketcher.Constraint("Radius", 4, 12.5),
    Sketcher.Constraint("DistanceY", 0, 2, 0, 1, 40.0),
    Sketcher.Constraint("DistanceY", -1, 1, 2, 3, 35.0),
    Sketcher.Constraint("DistanceX", -1, 1, 2, 3, 54.641016),
])
pad7 = body.newObject("PartDesign::Pad", "Pad006")
pad7.Profile = sketch9
pad7.Length = 10

sketch10 = body.newObject("Sketcher::SketchObject", "Sketch009")
sketch10.AttachmentSupport = (doc.getObject("XY_Plane"), [""])
sketch10.MapMode = "FlatFace"
sketch10.AttachmentOffset = App.Placement(App.Vector(0, 0, 30), App.Rotation())
sketch10.addGeometry(Part.Circle(App.Vector(0, 0, 0), App.Vector(0, 0, 1), 30), False)
sketch10.addConstraint([
    Sketcher.Constraint("Coincident", 0, 3, -1, 1),
    Sketcher.Constraint("Diameter", 0, 60.0),
])
pocket3 = body.newObject("PartDesign::Pocket", "Pocket002")
pocket3.Profile = sketch10
pocket3.Type = "ThroughAll"

sketch11 = body.newObject("Sketcher::SketchObject", "Sketch010")
sketch11.AttachmentSupport = (doc.getObject("XY_Plane"), [""])
sketch11.MapMode = "FlatFace"
sketch11.AttachmentOffset = App.Placement(App.Vector(0, 0, 30), App.Rotation())
sketch11.addGeometry(Part.Circle(App.Vector(0, 0, 0), App.Vector(0, 0, 1), 30), False)
sketch11.addConstraint([
    Sketcher.Constraint("Coincident", 0, 3, -1, 1),
    Sketcher.Constraint("Diameter", 0, 61.0),
])
pocket4 = body.newObject("PartDesign::Pocket", "Pocket003")
pocket4.Profile = sketch11
pocket4.Length = 14

sketch12 = body.newObject("Sketcher::SketchObject", "Sketch011")
sketch12.AttachmentSupport = (doc.getObject("XY_Plane"), [""])
sketch12.MapMode = "FlatFace"
sketch12.AttachmentOffset = App.Placement(App.Vector(0, 0, 14), App.Rotation())
sketch12.addGeometry(Part.Circle(App.Vector(0, 0, 0), App.Vector(0, 0, 1), 30), False)
sketch12.addConstraint([
    Sketcher.Constraint("Coincident", 0, 3, -1, 1),
    Sketcher.Constraint("Diameter", 0, 61.0),
])
pocket5 = body.newObject("PartDesign::Pocket", "Pocket004")
pocket5.Profile = sketch12
pocket5.Length = 14

doc.recompute()
